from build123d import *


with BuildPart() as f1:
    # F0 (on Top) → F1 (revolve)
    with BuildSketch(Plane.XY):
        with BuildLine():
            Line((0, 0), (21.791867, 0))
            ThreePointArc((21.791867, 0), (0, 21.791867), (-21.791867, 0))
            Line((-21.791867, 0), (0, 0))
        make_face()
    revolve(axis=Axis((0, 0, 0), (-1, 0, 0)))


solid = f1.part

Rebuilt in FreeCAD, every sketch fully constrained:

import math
import FreeCAD as App
import Part
import Sketcher
from FreeCAD import Vector

doc = App.newDocument("Part")
params = doc.addObject("Spreadsheet::Sheet", "Params")
for row, (alias, value) in enumerate([
    ("revolution_angle", "360 deg"),
], start=1):
    params.set(f"A{row}", alias)
    params.set(f"B{row}", "=" + value)
    params.setAlias(f"B{row}", alias)

body = doc.addObject("PartDesign::Body", "Body")

# Sketch on XY plane
sketch1 = doc.addObject("Sketcher::SketchObject", "Sketch")
body.addObject(sketch1)
sketch1.AttachmentSupport = (doc.XY_Plane, [""])
sketch1.MapMode = "FlatFace"
sketch1.addGeometry(Part.ArcOfCircle(Part.Circle(Vector(0, 0, 0), Vector(0, 0, 1), 22), math.radians(0), math.radians(180)), False)
sketch1.addGeometry(Part.LineSegment(Vector(-22, 0, 0), Vector(22, 0, 0)), False)
sketch1.addConstraint(Sketcher.Constraint("Coincident", 0, 1, 1, 2))
sketch1.addConstraint(Sketcher.Constraint("Coincident", 1, 1, 0, 2))
sketch1.addConstraint(Sketcher.Constraint("Horizontal", 1))
sketch1.addConstraint(Sketcher.Constraint("Coincident", 0, 3, -1, 1))
sketch1.addConstraint(Sketcher.Constraint("PointOnObject", 0, 1, -1))
sketch1.addConstraint(Sketcher.Constraint("Radius", 0, 21.791867))
revolution = doc.addObject("PartDesign::Revolution", "Revolution")
body.addObject(revolution)
revolution.Profile = sketch1
revolution.ReferenceAxis = (sketch1, ["H_Axis"])
revolution.setExpression("Angle", "Params.revolution_angle")

doc.recompute()
